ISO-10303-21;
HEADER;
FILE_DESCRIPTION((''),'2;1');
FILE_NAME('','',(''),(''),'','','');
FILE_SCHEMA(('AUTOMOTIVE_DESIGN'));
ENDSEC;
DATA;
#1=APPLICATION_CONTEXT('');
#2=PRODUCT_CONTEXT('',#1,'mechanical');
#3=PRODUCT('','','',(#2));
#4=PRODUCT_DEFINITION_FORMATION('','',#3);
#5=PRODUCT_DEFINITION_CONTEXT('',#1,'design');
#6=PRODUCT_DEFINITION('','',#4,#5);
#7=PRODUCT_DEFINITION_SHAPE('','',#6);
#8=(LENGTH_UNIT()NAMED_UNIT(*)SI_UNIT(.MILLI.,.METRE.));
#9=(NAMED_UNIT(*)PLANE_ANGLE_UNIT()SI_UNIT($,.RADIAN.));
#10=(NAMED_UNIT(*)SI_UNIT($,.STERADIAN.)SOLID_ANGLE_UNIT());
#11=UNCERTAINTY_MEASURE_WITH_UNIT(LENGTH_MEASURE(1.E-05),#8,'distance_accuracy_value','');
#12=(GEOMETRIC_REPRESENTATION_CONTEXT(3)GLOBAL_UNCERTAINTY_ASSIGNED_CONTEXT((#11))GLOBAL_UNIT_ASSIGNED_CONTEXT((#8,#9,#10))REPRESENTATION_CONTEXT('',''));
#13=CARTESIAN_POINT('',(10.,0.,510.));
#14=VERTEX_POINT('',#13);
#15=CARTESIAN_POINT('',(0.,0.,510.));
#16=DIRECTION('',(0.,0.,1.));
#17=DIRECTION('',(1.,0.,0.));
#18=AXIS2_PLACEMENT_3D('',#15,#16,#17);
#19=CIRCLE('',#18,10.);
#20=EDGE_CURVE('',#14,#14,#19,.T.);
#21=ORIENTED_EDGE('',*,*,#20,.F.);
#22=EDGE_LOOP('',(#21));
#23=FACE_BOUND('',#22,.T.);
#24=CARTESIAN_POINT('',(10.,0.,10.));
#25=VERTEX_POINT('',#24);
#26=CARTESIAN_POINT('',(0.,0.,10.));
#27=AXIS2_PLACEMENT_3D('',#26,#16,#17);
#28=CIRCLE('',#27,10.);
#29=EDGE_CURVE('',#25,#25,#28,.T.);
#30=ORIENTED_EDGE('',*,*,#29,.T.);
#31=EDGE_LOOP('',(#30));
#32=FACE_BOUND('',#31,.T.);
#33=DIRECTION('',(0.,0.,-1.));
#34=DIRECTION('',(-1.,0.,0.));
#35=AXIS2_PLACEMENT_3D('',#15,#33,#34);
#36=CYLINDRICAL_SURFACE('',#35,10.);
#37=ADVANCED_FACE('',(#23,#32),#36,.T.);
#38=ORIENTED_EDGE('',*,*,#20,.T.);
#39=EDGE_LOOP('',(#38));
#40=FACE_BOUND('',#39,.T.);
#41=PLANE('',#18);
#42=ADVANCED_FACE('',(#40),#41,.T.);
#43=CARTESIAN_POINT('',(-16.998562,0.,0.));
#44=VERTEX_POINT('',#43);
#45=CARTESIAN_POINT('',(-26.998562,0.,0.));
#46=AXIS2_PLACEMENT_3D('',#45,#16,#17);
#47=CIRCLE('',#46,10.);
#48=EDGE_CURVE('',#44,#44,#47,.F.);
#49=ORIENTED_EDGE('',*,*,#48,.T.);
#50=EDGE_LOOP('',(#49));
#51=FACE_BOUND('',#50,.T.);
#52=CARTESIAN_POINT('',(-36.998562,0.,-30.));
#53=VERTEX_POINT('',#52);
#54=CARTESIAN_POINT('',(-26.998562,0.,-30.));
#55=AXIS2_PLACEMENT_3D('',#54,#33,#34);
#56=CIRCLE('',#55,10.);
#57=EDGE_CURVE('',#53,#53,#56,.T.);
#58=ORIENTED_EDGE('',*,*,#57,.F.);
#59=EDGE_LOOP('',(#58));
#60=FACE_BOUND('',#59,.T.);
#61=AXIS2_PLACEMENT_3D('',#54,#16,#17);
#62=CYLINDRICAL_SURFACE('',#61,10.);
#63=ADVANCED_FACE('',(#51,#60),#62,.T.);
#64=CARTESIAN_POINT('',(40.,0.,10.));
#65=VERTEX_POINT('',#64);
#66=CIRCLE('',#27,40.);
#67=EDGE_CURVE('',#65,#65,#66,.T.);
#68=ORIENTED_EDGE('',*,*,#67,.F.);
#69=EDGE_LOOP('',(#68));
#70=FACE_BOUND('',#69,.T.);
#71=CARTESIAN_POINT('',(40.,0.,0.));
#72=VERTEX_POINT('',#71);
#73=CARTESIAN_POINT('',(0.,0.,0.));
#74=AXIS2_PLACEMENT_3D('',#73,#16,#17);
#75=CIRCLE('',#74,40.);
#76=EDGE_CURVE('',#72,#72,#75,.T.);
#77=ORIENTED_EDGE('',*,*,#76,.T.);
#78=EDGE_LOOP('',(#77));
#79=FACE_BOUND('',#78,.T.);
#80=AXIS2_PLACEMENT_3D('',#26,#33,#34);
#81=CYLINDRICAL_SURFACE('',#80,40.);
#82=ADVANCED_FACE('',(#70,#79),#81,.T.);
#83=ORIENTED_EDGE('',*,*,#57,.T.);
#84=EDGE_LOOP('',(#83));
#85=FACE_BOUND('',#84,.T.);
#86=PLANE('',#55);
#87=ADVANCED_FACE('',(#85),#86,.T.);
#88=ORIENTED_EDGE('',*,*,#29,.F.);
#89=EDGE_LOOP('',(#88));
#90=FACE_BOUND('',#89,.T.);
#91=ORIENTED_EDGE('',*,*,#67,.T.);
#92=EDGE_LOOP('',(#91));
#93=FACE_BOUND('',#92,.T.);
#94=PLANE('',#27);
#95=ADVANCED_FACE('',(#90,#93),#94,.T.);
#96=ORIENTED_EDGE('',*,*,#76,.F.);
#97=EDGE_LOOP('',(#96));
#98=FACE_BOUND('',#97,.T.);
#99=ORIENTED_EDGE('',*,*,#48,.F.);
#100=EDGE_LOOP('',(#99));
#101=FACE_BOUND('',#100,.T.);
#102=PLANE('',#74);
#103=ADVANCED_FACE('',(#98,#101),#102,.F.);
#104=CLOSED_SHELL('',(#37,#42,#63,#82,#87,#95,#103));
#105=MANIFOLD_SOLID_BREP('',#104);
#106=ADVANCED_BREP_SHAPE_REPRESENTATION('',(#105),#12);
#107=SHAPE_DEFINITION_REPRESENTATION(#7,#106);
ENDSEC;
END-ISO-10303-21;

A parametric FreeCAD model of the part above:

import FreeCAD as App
import Part
import Sketcher

V = App.Vector

doc = App.newDocument("Part")
body = doc.addObject("PartDesign::Body", "Body")

sketch1 = body.newObject("Sketcher::SketchObject", "Sketch")
sketch1.AttachmentSupport = (doc.getObject("XY_Plane"), [""])
sketch1.MapMode = "FlatFace"
sketch1.addGeometry(Part.Circle(V(0, 0, 0), V(0, 0, 1), 40), False)
sketch1.addConstraint([
    Sketcher.Constraint("Coincident", 0, 3, -1, 1),
    Sketcher.Constraint("Diameter", 0, 80.0),
])
pad1 = body.newObject("PartDesign::Pad", "Pad")
pad1.Profile = sketch1
pad1.Length = 10

sketch2 = body.newObject("Sketcher::SketchObject", "Sketch001")
sketch2.AttachmentSupport = (doc.getObject("XY_Plane"), [""])
sketch2.MapMode = "FlatFace"
sketch2.AttachmentOffset = App.Placement(V(0, 0, 10), App.Rotation())
sketch2.addGeometry(Part.Circle(V(0, 0, 0), V(0, 0, 1), 10), False)
sketch2.addConstraint([
    Sketcher.Constraint("Coincident", 0, 3, -1, 1),
    Sketcher.Constraint("Diameter", 0, 20.0),
])
pad2 = body.newObject("PartDesign::Pad", "Pad001")
pad2.Profile = sketch2
pad2.Length = 500

sketch3 = body.newObject("Sketcher::SketchObject", "Sketch002")
sketch3.AttachmentSupport = (doc.getObject("XY_Plane"), [""])
sketch3.MapMode = "FlatFace"
sketch3.addGeometry(Part.Circle(V(-27, 0, 0), V(0, 0, 1), 10), False)
sketch3.addConstraint([
    Sketcher.Constraint("PointOnObject", 0, 3, -1),
    Sketcher.Constraint("Diameter", 0, 20.0),
    Sketcher.Constraint("DistanceX", 0, 3, -1, 1, 26.998562),
])
pad3 = body.newObject("PartDesign::Pad", "Pad002")
pad3.Profile = sketch3
pad3.Length = 30
pad3.Reversed = True

doc.recompute()
